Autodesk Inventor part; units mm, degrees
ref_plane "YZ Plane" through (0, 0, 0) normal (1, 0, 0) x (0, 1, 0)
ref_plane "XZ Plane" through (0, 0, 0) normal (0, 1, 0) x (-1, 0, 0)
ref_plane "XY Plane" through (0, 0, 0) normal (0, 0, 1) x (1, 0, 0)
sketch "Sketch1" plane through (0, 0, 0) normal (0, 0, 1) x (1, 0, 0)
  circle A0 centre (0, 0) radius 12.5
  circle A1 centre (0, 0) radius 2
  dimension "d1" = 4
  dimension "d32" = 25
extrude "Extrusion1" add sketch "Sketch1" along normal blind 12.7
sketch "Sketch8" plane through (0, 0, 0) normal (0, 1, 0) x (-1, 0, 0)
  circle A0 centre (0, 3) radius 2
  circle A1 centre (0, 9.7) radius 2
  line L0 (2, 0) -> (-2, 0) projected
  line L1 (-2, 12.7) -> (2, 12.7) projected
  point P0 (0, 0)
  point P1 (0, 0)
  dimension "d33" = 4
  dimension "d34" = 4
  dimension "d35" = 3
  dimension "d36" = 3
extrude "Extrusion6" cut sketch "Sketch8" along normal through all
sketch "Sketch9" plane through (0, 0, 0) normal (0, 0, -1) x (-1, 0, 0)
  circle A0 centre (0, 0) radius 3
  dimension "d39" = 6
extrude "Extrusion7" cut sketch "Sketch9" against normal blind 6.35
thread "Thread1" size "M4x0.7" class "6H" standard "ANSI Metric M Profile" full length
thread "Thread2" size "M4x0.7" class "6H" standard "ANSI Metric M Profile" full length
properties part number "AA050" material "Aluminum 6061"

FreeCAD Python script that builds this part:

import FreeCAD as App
import Part
import Sketcher
Q = App.Units.Quantity

doc = App.newDocument("Part")
params = doc.addObject("Spreadsheet::Sheet", "Params")
for row, (alias, value) in enumerate([
    ("sketch1_diameter", "25 mm"),
    ("sketch1_diameter2", "4 mm"),
    ("pad1_length", "12.7 mm"),
    ("sketch2_diameter", "4 mm"),
    ("sketch3_diameter", "6 mm"),
    ("pocket2_length", "6.35 mm"),
], start=1):
    params.set(f"A{row}", alias)
    params.set(f"B{row}", "=" + value)
    params.setAlias(f"B{row}", alias)

body = doc.addObject("PartDesign::Body", "Body")

# Sketch on XY plane
sketch1 = body.newObject("Sketcher::SketchObject", "Sketch")
sketch1.AttachmentSupport = (doc.getObject("XY_Plane"), [""])
sketch1.MapMode = "FlatFace"
sketch1.addGeometry([
    Part.Circle(App.Vector(0, 0, 0), App.Vector(0, 0, 1), 12.5),
    Part.Circle(App.Vector(0, 0, 0), App.Vector(0, 0, 1), 2),
], False)
sketch1.addConstraint([
    Sketcher.Constraint("Coincident", 0, 3, -1, 1),
    Sketcher.Constraint("Coincident", 1, 3, -1, 1),
    Sketcher.Constraint("Diameter", 0, Q("25 mm")),
    Sketcher.Constraint("Diameter", 1, Q("4 mm")),
])
sketch1.setExpression("Constraints[2]", "Params.sketch1_diameter")
sketch1.setExpression("Constraints[3]", "Params.sketch1_diameter2")
pad1 = body.newObject("PartDesign::Pad", "Pad")
pad1.Profile = sketch1
pad1.setExpression("Length", "Params.pad1_length")

# Sketch on XZ plane
sketch2 = body.newObject("Sketcher::SketchObject", "Sketch001")
sketch2.AttachmentSupport = (doc.getObject("XZ_Plane"), [""])
sketch2.MapMode = "FlatFace"
sketch2.addGeometry([
    Part.Circle(App.Vector(0, 3, 0), App.Vector(0, 0, 1), 2),
    Part.Circle(App.Vector(0, 9.7, 0), App.Vector(0, 0, 1), 2),
], False)
sketch2.addConstraint([
    Sketcher.Constraint("Equal", 0, 1),
    Sketcher.Constraint("PointOnObject", 0, 3, -2),
    Sketcher.Constraint("PointOnObject", 1, 3, -2),
    Sketcher.Constraint("Diameter", 0, Q("4 mm")),
    Sketcher.Constraint("DistanceY", -1, 1, 0, 3, Q("3 mm")),
    Sketcher.Constraint("DistanceY", -1, 1, 1, 3, Q("9.7 mm")),
])
sketch2.setExpression("Constraints[3]", "Params.sketch2_diameter")
pocket1 = body.newObject("PartDesign::Pocket", "Pocket")
pocket1.Profile = sketch2
pocket1.Type = "ThroughAll"

# Sketch on XY plane
sketch3 = body.newObject("Sketcher::SketchObject", "Sketch002")
sketch3.AttachmentSupport = (doc.getObject("XY_Plane"), [""])
sketch3.MapMode = "FlatFace"
sketch3.addGeometry(Part.Circle(App.Vector(0, 0, 0), App.Vector(0, 0, 1), 3), False)
sketch3.addConstraint([
    Sketcher.Constraint("Coincident", 0, 3, -1, 1),
    Sketcher.Constraint("Diameter", 0, Q("6 mm")),
])
sketch3.setExpression("Constraints[1]", "Params.sketch3_diameter")
pocket2 = body.newObject("PartDesign::Pocket", "Pocket001")
pocket2.Profile = sketch3
pocket2.setExpression("Length", "Params.pocket2_length")
pocket2.Reversed = True

doc.recompute()
